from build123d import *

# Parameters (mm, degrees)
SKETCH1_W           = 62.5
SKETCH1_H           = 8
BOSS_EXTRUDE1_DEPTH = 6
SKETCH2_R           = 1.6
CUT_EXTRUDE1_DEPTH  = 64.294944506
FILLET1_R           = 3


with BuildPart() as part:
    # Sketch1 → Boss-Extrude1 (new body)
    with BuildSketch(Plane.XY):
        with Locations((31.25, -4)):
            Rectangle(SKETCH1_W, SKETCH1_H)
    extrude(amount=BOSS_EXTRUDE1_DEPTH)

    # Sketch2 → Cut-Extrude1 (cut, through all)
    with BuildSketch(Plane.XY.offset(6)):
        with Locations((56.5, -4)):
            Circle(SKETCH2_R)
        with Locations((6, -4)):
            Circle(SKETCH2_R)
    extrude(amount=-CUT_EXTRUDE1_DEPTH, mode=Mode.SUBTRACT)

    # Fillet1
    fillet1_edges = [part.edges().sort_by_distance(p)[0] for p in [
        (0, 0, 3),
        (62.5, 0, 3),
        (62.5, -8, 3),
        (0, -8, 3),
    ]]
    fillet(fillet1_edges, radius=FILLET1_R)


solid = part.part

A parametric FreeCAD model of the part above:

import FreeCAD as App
import Part
import Sketcher


def edges_at(feature, points):
    """Names of the edges that pass closest to the given points."""
    edges = feature.Shape.Edges
    near = lambda p: min(range(len(edges)), key=lambda i: edges[i].distToShape(Part.Vertex(*p))[0])
    return sorted({f"Edge{near(p) + 1}" for p in points})


def add_polygon(sketch, points):
    """Adds a closed chain of lines whose ends are joined by coincident constraints."""
    first, n = sketch.GeometryCount, len(points)
    for a, b in zip(points, points[1:] + points[:1]):
        sketch.addGeometry(Part.LineSegment(App.Vector(*a, 0), App.Vector(*b, 0)), False)
    for i in range(n):
        sketch.addConstraint(Sketcher.Constraint("Coincident", first + i, 2, first + (i + 1) % n, 1))

doc = App.newDocument("Part")
body = doc.addObject("PartDesign::Body", "Body")

# Sketch on XY plane
sketch1 = body.newObject("Sketcher::SketchObject", "Sketch")
sketch1.AttachmentSupport = (doc.getObject("XY_Plane"), [""])
sketch1.MapMode = "FlatFace"
add_polygon(sketch1, [(0, 0), (0, -8), (62, -8), (62, 0)])  # lines 0-3
sketch1.addConstraint(Sketcher.Constraint("Vertical", 0))
sketch1.addConstraint(Sketcher.Constraint("Horizontal", 1))
sketch1.addConstraint(Sketcher.Constraint("Vertical", 2))
sketch1.addConstraint(Sketcher.Constraint("Horizontal", 3))
sketch1.addConstraint(Sketcher.Constraint("Coincident", 3, 2, -1, 1))
sketch1.addConstraint(Sketcher.Constraint("DistanceY", 0, 2, 0, 1, 8.0))
sketch1.addConstraint(Sketcher.Constraint("DistanceX", 1, 1, 1, 2, 62.5))
pad1 = body.newObject("PartDesign::Pad", "Pad")
pad1.Profile = sketch1
pad1.Length = 6

# Sketch on XY plane
sketch2 = body.newObject("Sketcher::SketchObject", "Sketch001")
sketch2.AttachmentSupport = (doc.getObject("XY_Plane"), [""])
sketch2.MapMode = "FlatFace"
sketch2.AttachmentOffset = App.Placement(App.Vector(0, 0, 6), App.Rotation())
sketch2.addGeometry(Part.Circle(App.Vector(56.5, -4, 0), App.Vector(0, 0, 1), 1.6), False)
sketch2.addGeometry(Part.Circle(App.Vector(6, -4, 0), App.Vector(0, 0, 1), 1.6), False)
sketch2.addConstraint(Sketcher.Constraint("Equal", 0, 1))
sketch2.addConstraint(Sketcher.Constraint("Horizontal", 0, 3, 1, 3))
sketch2.addConstraint(Sketcher.Constraint("Diameter", 0, 3.2))
sketch2.addConstraint(Sketcher.Constraint("DistanceY", 0, 3, -1, 1, 4.0))
sketch2.addConstraint(Sketcher.Constraint("DistanceX", -1, 1, 1, 3, 6.0))
sketch2.addConstraint(Sketcher.Constraint("DistanceX", -1, 1, 0, 3, 56.5))
pocket1 = body.newObject("PartDesign::Pocket", "Pocket")
pocket1.Profile = sketch2
pocket1.Type = "ThroughAll"
doc.recompute()

fillet = body.newObject("PartDesign::Fillet", "Fillet")
fillet.Base = (pocket1, edges_at(pocket1, [
    (0, 0, 3),
    (62.5, 0, 3),
    (62.5, -8, 3),
    (0, -8, 3),
]))
fillet.Radius = 3

doc.recompute()
